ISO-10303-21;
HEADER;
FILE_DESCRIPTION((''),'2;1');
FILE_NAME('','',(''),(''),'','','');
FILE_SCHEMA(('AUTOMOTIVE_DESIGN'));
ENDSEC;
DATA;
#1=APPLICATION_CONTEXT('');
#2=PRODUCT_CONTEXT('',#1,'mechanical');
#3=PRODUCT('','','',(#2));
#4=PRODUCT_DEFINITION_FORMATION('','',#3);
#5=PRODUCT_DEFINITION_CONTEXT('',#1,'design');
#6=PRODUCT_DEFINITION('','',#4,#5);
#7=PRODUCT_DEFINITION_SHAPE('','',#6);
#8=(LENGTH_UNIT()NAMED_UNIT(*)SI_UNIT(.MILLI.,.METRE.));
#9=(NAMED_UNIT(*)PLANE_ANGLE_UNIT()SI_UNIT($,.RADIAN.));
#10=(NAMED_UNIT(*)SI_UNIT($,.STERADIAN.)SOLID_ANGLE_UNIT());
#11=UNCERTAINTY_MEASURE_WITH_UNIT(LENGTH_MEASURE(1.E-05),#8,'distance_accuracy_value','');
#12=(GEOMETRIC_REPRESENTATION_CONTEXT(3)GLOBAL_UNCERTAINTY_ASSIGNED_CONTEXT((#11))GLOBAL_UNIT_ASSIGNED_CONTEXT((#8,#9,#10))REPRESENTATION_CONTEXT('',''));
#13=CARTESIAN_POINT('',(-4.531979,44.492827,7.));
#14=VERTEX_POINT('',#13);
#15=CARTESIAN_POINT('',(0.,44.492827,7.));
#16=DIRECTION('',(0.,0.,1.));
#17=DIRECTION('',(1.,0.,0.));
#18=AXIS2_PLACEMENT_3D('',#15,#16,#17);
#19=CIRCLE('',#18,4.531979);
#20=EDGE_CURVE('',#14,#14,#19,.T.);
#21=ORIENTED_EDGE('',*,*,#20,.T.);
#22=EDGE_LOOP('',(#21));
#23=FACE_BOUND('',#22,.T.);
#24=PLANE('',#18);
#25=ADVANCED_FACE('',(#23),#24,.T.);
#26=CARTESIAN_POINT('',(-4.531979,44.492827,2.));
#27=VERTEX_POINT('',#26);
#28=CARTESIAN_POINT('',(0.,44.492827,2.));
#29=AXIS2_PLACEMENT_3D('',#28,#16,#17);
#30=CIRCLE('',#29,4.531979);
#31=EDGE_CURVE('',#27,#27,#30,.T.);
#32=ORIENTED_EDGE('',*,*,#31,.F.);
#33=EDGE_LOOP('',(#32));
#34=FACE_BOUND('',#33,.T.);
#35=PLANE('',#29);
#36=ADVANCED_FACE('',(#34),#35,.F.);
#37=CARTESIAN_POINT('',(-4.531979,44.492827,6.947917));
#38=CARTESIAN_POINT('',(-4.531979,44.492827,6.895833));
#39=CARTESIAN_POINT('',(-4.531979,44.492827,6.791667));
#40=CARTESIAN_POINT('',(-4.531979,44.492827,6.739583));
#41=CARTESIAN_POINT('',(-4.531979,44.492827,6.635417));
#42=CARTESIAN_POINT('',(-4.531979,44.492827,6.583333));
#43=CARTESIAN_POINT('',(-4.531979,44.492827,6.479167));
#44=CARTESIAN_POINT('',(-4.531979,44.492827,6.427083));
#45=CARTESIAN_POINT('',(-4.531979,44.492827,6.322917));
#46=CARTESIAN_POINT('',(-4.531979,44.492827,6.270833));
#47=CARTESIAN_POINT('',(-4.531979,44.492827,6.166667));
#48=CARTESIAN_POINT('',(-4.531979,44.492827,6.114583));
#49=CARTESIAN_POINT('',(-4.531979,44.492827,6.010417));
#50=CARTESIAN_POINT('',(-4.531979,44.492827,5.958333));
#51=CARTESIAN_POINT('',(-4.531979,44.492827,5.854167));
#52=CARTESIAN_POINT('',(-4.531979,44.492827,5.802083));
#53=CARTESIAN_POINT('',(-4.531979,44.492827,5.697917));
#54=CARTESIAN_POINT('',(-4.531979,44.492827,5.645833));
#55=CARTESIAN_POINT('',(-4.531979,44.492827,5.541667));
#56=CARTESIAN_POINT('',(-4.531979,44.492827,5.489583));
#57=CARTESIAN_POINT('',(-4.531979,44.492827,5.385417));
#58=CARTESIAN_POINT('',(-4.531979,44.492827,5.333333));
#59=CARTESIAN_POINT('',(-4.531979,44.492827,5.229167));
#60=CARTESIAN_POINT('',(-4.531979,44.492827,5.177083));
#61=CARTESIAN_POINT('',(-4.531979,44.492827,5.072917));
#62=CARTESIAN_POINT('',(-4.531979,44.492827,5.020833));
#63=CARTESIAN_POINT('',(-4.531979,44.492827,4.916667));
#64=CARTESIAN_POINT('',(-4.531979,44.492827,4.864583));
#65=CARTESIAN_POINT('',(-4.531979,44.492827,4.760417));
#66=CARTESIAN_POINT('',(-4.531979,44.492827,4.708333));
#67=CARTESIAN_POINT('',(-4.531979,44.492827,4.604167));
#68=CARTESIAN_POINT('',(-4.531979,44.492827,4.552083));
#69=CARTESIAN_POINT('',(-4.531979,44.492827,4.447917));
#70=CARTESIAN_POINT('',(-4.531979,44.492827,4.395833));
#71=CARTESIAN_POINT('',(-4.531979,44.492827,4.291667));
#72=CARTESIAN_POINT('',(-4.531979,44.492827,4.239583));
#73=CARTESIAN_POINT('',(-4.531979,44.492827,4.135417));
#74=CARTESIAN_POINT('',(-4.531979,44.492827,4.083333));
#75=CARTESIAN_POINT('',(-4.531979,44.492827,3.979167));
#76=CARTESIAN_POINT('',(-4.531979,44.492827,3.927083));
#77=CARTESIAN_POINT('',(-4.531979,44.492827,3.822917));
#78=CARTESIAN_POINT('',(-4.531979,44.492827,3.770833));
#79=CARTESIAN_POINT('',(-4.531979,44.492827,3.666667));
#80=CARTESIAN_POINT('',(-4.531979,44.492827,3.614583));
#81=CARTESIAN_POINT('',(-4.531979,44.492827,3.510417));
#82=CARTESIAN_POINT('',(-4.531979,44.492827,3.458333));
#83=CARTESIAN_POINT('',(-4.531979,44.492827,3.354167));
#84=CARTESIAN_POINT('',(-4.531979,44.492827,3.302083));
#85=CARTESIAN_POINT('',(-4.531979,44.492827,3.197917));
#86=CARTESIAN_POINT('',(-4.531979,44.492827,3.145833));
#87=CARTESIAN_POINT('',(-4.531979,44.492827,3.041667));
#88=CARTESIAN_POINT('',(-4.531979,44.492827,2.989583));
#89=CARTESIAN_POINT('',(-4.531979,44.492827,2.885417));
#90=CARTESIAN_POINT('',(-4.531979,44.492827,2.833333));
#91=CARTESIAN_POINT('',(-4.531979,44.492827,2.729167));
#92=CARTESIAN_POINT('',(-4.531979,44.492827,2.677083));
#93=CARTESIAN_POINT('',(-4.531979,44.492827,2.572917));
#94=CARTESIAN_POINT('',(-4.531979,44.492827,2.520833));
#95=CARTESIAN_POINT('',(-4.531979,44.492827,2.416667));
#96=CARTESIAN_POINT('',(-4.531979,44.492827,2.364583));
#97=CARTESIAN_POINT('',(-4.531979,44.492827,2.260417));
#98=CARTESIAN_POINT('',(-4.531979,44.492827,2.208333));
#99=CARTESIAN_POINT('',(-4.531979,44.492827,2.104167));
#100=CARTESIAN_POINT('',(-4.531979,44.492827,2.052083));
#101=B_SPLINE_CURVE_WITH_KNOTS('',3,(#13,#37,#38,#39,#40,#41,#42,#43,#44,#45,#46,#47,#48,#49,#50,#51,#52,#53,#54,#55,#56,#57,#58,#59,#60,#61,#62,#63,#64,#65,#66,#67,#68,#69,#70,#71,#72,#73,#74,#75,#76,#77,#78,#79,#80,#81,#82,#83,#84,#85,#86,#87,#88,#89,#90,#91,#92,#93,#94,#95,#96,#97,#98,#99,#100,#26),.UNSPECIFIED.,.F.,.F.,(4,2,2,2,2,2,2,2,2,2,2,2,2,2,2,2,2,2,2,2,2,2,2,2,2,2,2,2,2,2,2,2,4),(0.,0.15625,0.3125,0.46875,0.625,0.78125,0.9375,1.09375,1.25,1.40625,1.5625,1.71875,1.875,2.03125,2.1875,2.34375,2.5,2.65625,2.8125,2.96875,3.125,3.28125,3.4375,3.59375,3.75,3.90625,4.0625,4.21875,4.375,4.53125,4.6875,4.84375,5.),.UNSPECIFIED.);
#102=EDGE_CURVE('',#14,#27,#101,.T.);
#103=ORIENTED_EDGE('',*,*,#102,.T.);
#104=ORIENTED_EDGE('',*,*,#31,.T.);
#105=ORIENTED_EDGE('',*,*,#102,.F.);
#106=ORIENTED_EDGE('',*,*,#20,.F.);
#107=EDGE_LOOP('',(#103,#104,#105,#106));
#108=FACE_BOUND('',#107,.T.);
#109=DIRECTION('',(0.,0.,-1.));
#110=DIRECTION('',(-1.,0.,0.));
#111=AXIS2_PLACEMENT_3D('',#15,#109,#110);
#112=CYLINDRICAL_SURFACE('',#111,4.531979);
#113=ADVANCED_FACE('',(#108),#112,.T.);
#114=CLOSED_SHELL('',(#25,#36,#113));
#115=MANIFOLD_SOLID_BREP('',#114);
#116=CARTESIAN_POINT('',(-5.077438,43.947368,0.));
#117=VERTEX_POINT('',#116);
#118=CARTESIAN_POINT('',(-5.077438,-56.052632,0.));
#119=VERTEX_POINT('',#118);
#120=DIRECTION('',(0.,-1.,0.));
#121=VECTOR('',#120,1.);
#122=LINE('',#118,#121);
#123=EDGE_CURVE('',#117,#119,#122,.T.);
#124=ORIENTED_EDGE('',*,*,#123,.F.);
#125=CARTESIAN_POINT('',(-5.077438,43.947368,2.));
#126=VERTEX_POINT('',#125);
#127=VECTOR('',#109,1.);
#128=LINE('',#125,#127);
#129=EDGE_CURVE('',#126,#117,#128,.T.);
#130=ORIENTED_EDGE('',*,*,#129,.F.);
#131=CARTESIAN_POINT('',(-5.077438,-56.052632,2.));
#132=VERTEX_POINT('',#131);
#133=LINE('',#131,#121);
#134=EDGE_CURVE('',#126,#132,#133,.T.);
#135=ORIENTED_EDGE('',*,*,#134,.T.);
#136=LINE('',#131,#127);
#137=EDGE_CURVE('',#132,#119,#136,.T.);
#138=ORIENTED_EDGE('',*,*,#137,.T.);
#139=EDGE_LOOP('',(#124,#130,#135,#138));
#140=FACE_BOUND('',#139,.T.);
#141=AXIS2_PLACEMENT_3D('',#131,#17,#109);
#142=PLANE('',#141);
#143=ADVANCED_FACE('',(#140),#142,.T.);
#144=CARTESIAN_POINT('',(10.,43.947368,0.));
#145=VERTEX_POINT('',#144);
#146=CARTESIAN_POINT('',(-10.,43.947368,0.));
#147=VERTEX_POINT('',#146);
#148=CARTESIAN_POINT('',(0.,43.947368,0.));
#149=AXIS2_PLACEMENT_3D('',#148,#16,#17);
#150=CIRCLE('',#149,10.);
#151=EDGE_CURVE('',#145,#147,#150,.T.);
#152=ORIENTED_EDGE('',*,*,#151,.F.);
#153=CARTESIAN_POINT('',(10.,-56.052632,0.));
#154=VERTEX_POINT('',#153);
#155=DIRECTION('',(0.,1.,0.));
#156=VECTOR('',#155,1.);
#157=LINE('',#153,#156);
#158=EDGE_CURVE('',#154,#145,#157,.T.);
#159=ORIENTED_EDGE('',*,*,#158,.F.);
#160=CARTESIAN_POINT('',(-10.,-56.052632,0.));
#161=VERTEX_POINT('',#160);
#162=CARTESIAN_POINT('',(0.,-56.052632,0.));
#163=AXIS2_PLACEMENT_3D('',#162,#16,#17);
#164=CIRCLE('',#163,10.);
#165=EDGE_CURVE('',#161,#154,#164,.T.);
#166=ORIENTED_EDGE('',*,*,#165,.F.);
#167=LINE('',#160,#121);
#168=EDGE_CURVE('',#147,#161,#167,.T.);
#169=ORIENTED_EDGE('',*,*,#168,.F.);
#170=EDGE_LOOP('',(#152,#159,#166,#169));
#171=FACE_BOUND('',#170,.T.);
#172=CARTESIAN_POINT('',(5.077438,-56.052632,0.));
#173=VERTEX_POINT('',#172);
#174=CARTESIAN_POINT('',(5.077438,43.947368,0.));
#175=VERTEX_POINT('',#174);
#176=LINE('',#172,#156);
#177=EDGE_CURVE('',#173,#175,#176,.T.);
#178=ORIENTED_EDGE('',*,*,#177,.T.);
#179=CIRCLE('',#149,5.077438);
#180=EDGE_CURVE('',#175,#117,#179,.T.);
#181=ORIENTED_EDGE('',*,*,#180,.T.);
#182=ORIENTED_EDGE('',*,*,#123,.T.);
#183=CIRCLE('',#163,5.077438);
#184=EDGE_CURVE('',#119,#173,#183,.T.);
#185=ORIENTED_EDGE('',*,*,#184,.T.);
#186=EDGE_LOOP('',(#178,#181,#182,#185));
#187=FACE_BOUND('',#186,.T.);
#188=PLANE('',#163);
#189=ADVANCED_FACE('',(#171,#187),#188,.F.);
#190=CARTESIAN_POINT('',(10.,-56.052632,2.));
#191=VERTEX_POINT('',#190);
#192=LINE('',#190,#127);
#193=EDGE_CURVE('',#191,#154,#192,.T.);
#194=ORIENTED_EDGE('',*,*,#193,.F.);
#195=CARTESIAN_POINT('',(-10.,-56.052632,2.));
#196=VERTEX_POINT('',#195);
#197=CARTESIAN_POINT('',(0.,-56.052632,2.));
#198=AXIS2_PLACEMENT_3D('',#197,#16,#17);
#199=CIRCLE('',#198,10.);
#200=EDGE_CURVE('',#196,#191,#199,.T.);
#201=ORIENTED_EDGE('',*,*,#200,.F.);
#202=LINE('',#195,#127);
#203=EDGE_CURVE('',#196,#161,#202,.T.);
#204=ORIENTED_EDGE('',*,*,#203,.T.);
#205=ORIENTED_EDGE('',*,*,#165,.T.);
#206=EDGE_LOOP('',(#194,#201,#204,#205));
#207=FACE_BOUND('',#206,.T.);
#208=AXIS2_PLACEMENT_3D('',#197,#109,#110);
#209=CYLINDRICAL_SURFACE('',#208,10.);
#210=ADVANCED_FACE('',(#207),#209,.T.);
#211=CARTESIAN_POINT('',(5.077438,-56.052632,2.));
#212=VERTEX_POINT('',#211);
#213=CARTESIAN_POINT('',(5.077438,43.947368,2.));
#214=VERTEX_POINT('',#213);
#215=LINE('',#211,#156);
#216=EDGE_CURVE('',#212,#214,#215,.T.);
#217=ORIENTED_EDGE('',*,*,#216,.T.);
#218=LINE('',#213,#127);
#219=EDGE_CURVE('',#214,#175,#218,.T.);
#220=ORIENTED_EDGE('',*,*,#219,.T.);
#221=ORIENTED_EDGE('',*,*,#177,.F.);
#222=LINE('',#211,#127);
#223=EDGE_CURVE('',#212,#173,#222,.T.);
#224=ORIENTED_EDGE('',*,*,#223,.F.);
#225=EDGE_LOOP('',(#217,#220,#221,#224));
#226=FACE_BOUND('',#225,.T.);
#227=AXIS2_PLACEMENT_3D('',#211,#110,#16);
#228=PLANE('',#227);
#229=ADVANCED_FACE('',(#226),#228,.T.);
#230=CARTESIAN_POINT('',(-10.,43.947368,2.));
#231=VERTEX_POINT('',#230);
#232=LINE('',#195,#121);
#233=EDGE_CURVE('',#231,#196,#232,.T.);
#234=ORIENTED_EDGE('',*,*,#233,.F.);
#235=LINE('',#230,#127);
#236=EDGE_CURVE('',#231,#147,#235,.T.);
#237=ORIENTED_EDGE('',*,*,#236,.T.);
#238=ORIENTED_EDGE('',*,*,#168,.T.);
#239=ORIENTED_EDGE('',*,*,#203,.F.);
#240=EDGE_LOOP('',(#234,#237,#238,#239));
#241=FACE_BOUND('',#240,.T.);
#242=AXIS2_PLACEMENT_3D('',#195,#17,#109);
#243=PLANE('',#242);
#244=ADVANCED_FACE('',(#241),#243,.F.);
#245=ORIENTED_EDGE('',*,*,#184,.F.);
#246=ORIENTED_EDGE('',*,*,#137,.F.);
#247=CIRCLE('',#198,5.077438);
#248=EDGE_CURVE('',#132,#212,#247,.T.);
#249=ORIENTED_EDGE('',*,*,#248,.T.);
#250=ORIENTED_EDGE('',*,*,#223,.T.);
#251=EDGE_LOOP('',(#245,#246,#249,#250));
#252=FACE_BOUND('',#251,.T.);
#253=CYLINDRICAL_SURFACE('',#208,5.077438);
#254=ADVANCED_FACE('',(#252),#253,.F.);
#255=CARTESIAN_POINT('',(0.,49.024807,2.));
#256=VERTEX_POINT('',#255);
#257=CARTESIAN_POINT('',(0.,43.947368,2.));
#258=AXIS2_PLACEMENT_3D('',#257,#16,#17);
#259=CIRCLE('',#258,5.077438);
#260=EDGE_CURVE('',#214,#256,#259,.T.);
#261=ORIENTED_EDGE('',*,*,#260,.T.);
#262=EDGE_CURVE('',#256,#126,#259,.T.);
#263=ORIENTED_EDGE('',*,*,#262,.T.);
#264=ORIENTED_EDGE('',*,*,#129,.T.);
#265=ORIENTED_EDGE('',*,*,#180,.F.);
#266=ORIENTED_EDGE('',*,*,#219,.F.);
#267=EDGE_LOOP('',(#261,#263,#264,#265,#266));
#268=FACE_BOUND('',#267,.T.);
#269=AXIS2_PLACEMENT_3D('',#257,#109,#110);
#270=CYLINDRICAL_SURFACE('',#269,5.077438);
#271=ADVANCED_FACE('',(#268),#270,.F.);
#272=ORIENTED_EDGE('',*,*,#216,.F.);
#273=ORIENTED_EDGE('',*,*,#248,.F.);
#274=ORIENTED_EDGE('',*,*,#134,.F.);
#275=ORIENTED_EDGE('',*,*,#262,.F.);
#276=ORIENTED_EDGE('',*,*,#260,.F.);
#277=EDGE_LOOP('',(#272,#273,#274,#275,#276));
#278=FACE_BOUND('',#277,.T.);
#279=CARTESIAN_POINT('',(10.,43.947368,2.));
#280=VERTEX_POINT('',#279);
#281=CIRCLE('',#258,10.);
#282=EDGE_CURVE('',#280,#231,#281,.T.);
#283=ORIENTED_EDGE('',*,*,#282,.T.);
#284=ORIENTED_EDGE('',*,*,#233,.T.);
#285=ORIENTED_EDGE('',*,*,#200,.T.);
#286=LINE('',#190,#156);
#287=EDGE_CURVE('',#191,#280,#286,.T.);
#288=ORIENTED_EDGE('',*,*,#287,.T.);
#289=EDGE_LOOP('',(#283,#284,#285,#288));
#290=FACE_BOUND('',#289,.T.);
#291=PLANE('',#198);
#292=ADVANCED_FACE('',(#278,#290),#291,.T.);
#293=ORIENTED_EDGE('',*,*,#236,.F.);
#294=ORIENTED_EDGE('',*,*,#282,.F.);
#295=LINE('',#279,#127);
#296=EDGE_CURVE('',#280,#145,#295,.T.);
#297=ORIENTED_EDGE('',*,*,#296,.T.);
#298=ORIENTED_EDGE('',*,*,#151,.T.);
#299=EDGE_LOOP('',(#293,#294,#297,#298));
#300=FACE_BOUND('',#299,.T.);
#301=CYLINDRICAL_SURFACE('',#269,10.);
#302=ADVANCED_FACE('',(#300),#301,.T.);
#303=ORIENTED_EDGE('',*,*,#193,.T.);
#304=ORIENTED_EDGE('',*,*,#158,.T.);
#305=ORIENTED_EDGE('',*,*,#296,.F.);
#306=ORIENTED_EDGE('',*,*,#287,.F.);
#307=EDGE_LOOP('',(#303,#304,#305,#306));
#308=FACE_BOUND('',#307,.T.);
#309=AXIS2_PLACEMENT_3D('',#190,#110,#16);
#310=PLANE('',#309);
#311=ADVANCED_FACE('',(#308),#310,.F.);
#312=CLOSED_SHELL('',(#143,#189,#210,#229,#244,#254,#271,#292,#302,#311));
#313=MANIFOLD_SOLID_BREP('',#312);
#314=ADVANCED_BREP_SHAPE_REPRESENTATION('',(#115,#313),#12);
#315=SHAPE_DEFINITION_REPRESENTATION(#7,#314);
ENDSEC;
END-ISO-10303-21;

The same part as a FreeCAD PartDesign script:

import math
import FreeCAD as App
import Part
import Sketcher

V = App.Vector
Q = App.Units.Quantity

doc = App.newDocument("Part")
body = doc.addObject("PartDesign::Body", "Body")

# Sketch on XY plane
sketch1 = doc.addObject("Sketcher::SketchObject", "Sketch")
body.addObject(sketch1)
sketch1.AttachmentSupport = (doc.XY_Plane, [""])
sketch1.MapMode = "FlatFace"
sketch1.addGeometry(Part.LineSegment(V(-10, 44, 0), V(-10, -56, 0)), False)
sketch1.addGeometry(Part.ArcOfCircle(Part.Circle(V(0, -56, 0), V(0, 0, 1), 10), math.radians(180), math.radians(360)), False)
sketch1.addGeometry(Part.LineSegment(V(10, -56, 0), V(10, 44, 0)), False)
sketch1.addGeometry(Part.ArcOfCircle(Part.Circle(V(0, 44, 0), V(0, 0, 1), 10), math.radians(0), math.radians(180)), False)
sketch1.addGeometry(Part.LineSegment(V(-5, -56, 0), V(-5, 44, 0)), False)
sketch1.addGeometry(Part.ArcOfCircle(Part.Circle(V(0, 44, 0), V(0, 0, 1), 5), math.radians(0), math.radians(180)), False)
sketch1.addGeometry(Part.LineSegment(V(5, 44, 0), V(5, -56, 0)), False)
sketch1.addGeometry(Part.ArcOfCircle(Part.Circle(V(0, -56, 0), V(0, 0, 1), 5), math.radians(180), math.radians(360)), False)
sketch1.addConstraint(Sketcher.Constraint("Tangent", 0, 2, 1, 1))
sketch1.addConstraint(Sketcher.Constraint("Tangent", 1, 2, 2, 1))
sketch1.addConstraint(Sketcher.Constraint("Tangent", 2, 2, 3, 1))
sketch1.addConstraint(Sketcher.Constraint("Tangent", 3, 2, 0, 1))
sketch1.addConstraint(Sketcher.Constraint("Tangent", 4, 2, 5, 2))
sketch1.addConstraint(Sketcher.Constraint("Tangent", 5, 1, 6, 1))
sketch1.addConstraint(Sketcher.Constraint("Tangent", 6, 2, 7, 2))
sketch1.addConstraint(Sketcher.Constraint("Tangent", 7, 1, 4, 1))
sketch1.addConstraint(Sketcher.Constraint("Vertical", 0))
sketch1.addConstraint(Sketcher.Constraint("Vertical", 2))
sketch1.addConstraint(Sketcher.Constraint("Vertical", 4))
sketch1.addConstraint(Sketcher.Constraint("Vertical", 6))
sketch1.addConstraint(Sketcher.Constraint("Coincident", 5, 3, 3, 3))
sketch1.addConstraint(Sketcher.Constraint("PointOnObject", 1, 3, -2))
sketch1.addConstraint(Sketcher.Constraint("Horizontal", 7, 3, 0, 2))
sketch1.addConstraint(Sketcher.Constraint("Radius", 1, Q("10 mm")))
sketch1.addConstraint(Sketcher.Constraint("DistanceY", 0, 2, 0, 1, Q("100 mm")))
sketch1.addConstraint(Sketcher.Constraint("Radius", 5, Q("5.077438 mm")))
sketch1.addConstraint(Sketcher.Constraint("DistanceY", 1, 3, -1, 1, Q("56.052632 mm")))
pad1 = doc.addObject("PartDesign::Pad", "Pad")
body.addObject(pad1)
pad1.Profile = sketch1
pad1.Length = 2
body2 = doc.addObject("PartDesign::Body", "Body001")

# Sketch on XY plane
sketch2 = doc.addObject("Sketcher::SketchObject", "Sketch001")
body2.addObject(sketch2)
sketch2.AttachmentSupport = (doc.getObject("XY_Plane001"), [""])
sketch2.MapMode = "FlatFace"
sketch2.AttachmentOffset = App.Placement(V(0, 0, 2), App.Rotation())
sketch2.addGeometry(Part.Circle(V(0, 44.5, 0), V(0, 0, 1), 4.5), False)
sketch2.addConstraint(Sketcher.Constraint("PointOnObject", 0, 3, -2))
sketch2.addConstraint(Sketcher.Constraint("Diameter", 0, Q("9.063959 mm")))
sketch2.addConstraint(Sketcher.Constraint("DistanceY", -1, 1, 0, 3, Q("44.492827 mm")))
pad2 = doc.addObject("PartDesign::Pad", "Pad001")
body2.addObject(pad2)
pad2.Profile = sketch2
pad2.Length = 5

doc.recompute()
